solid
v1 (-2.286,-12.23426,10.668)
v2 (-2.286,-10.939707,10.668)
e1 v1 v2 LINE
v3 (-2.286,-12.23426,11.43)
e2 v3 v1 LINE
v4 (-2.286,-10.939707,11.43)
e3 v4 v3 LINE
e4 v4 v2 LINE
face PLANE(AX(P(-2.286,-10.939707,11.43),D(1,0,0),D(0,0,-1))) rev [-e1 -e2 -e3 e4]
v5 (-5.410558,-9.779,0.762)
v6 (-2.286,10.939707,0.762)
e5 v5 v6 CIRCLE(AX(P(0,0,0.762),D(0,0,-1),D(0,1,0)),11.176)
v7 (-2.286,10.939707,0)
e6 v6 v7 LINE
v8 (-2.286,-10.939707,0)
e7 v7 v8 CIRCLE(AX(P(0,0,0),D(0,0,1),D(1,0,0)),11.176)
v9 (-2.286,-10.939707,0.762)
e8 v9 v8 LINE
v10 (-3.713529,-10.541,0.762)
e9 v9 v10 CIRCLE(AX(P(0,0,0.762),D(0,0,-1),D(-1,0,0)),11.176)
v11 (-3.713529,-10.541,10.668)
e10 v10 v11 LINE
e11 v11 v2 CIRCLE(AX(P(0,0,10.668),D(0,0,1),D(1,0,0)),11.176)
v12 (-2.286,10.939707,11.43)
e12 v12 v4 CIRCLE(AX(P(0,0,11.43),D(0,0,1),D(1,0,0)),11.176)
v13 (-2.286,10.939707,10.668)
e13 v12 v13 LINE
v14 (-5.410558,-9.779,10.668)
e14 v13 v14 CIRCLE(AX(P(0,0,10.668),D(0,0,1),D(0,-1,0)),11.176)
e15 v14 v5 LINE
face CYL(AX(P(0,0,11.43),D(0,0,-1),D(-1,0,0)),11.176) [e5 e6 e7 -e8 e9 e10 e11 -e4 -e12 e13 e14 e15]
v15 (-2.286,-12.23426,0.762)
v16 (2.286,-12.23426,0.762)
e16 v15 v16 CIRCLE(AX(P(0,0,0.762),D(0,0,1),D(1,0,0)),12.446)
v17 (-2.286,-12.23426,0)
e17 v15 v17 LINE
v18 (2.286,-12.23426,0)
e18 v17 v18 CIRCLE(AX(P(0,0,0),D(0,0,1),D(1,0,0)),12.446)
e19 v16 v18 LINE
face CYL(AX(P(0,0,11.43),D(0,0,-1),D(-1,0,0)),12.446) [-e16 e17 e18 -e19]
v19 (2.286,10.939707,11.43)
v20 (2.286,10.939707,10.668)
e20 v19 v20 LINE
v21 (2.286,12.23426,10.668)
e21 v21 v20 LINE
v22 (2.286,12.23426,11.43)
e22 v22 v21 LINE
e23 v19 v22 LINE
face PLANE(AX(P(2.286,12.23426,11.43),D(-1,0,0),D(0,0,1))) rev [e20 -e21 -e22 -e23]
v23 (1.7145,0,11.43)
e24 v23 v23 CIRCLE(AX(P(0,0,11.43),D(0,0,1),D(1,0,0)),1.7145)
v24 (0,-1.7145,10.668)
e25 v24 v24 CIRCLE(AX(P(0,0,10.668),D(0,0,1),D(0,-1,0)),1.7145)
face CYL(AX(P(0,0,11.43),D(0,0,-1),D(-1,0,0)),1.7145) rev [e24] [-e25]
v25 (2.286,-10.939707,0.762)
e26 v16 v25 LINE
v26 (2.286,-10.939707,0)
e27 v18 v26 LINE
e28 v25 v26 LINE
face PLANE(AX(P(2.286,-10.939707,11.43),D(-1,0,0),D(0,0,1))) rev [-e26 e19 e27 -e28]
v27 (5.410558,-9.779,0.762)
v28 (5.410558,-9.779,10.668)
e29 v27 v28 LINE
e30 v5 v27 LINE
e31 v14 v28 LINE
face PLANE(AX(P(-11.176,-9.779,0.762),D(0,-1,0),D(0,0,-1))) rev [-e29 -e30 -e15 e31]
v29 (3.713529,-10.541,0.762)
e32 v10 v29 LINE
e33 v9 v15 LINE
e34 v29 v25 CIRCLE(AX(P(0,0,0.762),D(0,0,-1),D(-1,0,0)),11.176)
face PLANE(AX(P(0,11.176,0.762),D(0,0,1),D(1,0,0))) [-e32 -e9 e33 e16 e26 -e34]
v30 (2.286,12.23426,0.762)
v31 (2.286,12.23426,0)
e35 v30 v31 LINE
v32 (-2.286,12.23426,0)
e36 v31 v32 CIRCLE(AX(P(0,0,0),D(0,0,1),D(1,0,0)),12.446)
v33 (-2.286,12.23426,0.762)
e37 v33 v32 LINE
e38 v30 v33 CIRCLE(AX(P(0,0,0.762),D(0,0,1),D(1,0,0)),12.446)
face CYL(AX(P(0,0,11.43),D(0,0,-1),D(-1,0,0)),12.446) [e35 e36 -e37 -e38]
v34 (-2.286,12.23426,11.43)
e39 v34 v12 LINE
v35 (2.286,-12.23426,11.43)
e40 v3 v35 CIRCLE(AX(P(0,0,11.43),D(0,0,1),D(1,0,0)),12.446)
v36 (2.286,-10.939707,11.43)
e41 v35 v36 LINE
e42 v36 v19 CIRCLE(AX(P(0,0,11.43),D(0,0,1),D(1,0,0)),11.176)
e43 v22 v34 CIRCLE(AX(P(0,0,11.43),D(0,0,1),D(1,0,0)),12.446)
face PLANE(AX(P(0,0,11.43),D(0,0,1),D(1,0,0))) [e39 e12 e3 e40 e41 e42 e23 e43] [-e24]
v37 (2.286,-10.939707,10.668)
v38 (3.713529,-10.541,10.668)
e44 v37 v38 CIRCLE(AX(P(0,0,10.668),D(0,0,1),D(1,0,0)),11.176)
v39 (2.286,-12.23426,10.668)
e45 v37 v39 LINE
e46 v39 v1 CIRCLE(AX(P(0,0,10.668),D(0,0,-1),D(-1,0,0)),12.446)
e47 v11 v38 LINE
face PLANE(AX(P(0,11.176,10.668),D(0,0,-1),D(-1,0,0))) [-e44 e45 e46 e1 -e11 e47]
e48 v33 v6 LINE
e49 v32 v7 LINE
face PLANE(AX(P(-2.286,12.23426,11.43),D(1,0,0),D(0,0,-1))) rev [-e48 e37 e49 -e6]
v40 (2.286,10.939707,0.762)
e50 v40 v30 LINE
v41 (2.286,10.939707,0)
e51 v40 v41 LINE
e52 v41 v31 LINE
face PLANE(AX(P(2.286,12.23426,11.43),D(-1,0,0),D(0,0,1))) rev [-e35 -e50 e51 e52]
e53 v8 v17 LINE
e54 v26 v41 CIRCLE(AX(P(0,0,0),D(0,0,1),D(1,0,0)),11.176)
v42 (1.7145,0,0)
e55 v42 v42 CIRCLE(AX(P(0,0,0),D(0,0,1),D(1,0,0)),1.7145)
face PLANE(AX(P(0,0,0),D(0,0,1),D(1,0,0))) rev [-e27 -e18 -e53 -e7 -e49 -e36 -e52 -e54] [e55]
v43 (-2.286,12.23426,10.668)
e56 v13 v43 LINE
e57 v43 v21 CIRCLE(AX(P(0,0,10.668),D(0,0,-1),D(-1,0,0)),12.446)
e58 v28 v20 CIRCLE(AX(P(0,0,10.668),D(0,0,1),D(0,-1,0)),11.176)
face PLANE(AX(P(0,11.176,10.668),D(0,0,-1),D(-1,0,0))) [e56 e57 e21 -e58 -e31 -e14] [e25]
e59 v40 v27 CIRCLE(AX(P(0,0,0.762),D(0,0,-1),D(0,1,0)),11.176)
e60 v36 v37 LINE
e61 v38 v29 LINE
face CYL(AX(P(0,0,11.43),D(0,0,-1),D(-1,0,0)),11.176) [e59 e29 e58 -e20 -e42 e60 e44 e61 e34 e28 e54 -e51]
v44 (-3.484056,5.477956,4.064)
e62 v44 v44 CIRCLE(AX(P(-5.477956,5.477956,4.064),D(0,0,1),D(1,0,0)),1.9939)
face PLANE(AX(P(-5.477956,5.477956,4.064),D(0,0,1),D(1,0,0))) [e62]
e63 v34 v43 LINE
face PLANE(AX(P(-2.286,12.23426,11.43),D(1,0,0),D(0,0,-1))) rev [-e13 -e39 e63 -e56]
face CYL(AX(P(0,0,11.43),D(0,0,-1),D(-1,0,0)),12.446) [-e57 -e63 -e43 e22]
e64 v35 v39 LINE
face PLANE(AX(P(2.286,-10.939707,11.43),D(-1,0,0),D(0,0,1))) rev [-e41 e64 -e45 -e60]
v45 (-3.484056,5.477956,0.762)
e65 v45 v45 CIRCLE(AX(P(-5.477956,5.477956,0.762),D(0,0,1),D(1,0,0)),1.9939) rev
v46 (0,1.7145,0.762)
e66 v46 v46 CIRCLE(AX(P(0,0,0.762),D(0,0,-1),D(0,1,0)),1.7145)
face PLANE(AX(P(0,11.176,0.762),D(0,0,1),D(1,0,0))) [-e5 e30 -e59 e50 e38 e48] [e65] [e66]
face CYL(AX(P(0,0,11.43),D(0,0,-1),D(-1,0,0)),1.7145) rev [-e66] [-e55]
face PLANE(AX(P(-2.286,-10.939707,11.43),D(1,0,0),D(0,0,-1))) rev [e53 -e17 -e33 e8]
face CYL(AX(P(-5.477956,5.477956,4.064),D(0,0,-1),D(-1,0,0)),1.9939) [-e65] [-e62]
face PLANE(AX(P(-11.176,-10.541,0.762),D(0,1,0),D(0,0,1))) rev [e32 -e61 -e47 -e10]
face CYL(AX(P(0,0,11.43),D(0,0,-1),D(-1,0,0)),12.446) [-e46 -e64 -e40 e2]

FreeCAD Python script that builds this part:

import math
import FreeCAD as App
import Part
import Sketcher
Q = App.Units.Quantity


def add_polygon(sketch, points):
    """Adds a closed chain of lines whose ends are joined by coincident constraints."""
    first, n = sketch.GeometryCount, len(points)
    for a, b in zip(points, points[1:] + points[:1]):
        sketch.addGeometry(Part.LineSegment(App.Vector(*a, 0), App.Vector(*b, 0)), False)
    for i in range(n):
        sketch.addConstraint(Sketcher.Constraint("Coincident", first + i, 2, first + (i + 1) % n, 1))

doc = App.newDocument("Part")
body = doc.addObject("PartDesign::Body", "Body")

# Sketch on XY plane
sketch1 = body.newObject("Sketcher::SketchObject", "Sketch")
sketch1.AttachmentSupport = (doc.getObject("XY_Plane"), [""])
sketch1.MapMode = "FlatFace"
sketch1.addGeometry(Part.LineSegment(App.Vector(-2.3, 12.2, 0), App.Vector(-2.3, 10.9, 0)), False)
sketch1.addGeometry(Part.ArcOfCircle(Part.Circle(App.Vector(0, 0, 0), App.Vector(0, 0, 1), 11.2), math.radians(102), math.radians(258)), False)
sketch1.addGeometry(Part.LineSegment(App.Vector(-2.3, -10.9, 0), App.Vector(-2.3, -12.2, 0)), False)
sketch1.addGeometry(Part.ArcOfCircle(Part.Circle(App.Vector(0, 0, 0), App.Vector(0, 0, 1), 12.4), math.radians(-101), math.radians(-79)), False)
sketch1.addGeometry(Part.LineSegment(App.Vector(2.3, -12.2, 0), App.Vector(2.3, -10.9, 0)), False)
sketch1.addGeometry(Part.ArcOfCircle(Part.Circle(App.Vector(0, 0, 0), App.Vector(0, 0, 1), 11.2), math.radians(-78), math.radians(78)), False)
sketch1.addGeometry(Part.LineSegment(App.Vector(2.3, 10.9, 0), App.Vector(2.3, 12.2, 0)), False)
sketch1.addGeometry(Part.ArcOfCircle(Part.Circle(App.Vector(0, 0, 0), App.Vector(0, 0, 1), 12.4), math.radians(79), math.radians(101)), False)
sketch1.addGeometry(Part.Circle(App.Vector(0, 0, 0), App.Vector(0, 0, 1), 1.7), False)
sketch1.addConstraint(Sketcher.Constraint("Coincident", 0, 2, 1, 1))
sketch1.addConstraint(Sketcher.Constraint("Coincident", 1, 2, 2, 1))
sketch1.addConstraint(Sketcher.Constraint("Coincident", 2, 2, 3, 1))
sketch1.addConstraint(Sketcher.Constraint("Coincident", 3, 2, 4, 1))
sketch1.addConstraint(Sketcher.Constraint("Coincident", 4, 2, 5, 1))
sketch1.addConstraint(Sketcher.Constraint("Coincident", 5, 2, 6, 1))
sketch1.addConstraint(Sketcher.Constraint("Coincident", 6, 2, 7, 1))
sketch1.addConstraint(Sketcher.Constraint("Coincident", 7, 2, 0, 1))
sketch1.addConstraint(Sketcher.Constraint("Vertical", 0))
sketch1.addConstraint(Sketcher.Constraint("Vertical", 2))
sketch1.addConstraint(Sketcher.Constraint("Vertical", 4))
sketch1.addConstraint(Sketcher.Constraint("Vertical", 6))
sketch1.addConstraint(Sketcher.Constraint("Coincident", 1, 3, -1, 1))
sketch1.addConstraint(Sketcher.Constraint("Coincident", 3, 3, -1, 1))
sketch1.addConstraint(Sketcher.Constraint("Coincident", 5, 3, -1, 1))
sketch1.addConstraint(Sketcher.Constraint("Coincident", 7, 3, -1, 1))
sketch1.addConstraint(Sketcher.Constraint("Coincident", 8, 3, -1, 1))
sketch1.addConstraint(Sketcher.Constraint("Equal", 1, 5))
sketch1.addConstraint(Sketcher.Constraint("Equal", 3, 7))
sketch1.addConstraint(Sketcher.Constraint("Horizontal", 2, 2, 3, 2))
sketch1.addConstraint(Sketcher.Constraint("Horizontal", 0, 2, 5, 2))
sketch1.addConstraint(Sketcher.Constraint("Vertical", 0, 2, 1, 2))
sketch1.addConstraint(Sketcher.Constraint("Radius", 1, Q("0.44 in")))
sketch1.addConstraint(Sketcher.Constraint("Radius", 3, Q("0.49 in")))
sketch1.addConstraint(Sketcher.Constraint("Diameter", 8, Q("0.135 in")))
sketch1.addConstraint(Sketcher.Constraint("DistanceX", 0, 2, -1, 1, Q("0.09 in")))
pad1 = body.newObject("PartDesign::Pad", "Pad")
pad1.Profile = sketch1
pad1.Length = Q("0.45 in")

# Sketch on YZ plane
sketch2 = body.newObject("Sketcher::SketchObject", "Sketch001")
sketch2.AttachmentSupport = (doc.getObject("YZ_Plane"), [""])
sketch2.MapMode = "FlatFace"
add_polygon(sketch2, [(13.7, 10.7), (11.2, 10.7), (11.2, 0.8), (13.7, 0.8)])  # lines 0-3
sketch2.addConstraint(Sketcher.Constraint("Horizontal", 0))
sketch2.addConstraint(Sketcher.Constraint("Vertical", 1))
sketch2.addConstraint(Sketcher.Constraint("Horizontal", 2))
sketch2.addConstraint(Sketcher.Constraint("Vertical", 3))
sketch2.addConstraint(Sketcher.Constraint("DistanceX", 0, 2, 0, 1, Q("0.1 in")))
sketch2.addConstraint(Sketcher.Constraint("DistanceY", 1, 2, 1, 1, Q("0.39 in")))
sketch2.addConstraint(Sketcher.Constraint("DistanceX", -1, 1, 0, 2, Q("0.44 in")))
sketch2.addConstraint(Sketcher.Constraint("DistanceY", -1, 1, 0, 2, Q("0.42 in")))
groove = body.newObject("PartDesign::Groove", "Groove")
groove.Profile = sketch2
groove.ReferenceAxis = (sketch2, ["V_Axis"])
groove.Angle = 360

# Sketch on YZ plane
sketch3 = body.newObject("Sketcher::SketchObject", "Sketch002")
sketch3.AttachmentSupport = (doc.getObject("YZ_Plane"), [""])
sketch3.MapMode = "FlatFace"
add_polygon(sketch3, [(11.2, 10.7), (-9.8, 10.7), (-9.8, 0.8), (11.2, 0.8)])  # lines 0-3
add_polygon(sketch3, [(-10.5, 10.7), (-11.2, 10.7), (-11.2, 0.8), (-10.5, 0.8)])  # lines 4-7
sketch3.addConstraint(Sketcher.Constraint("Horizontal", 0))
sketch3.addConstraint(Sketcher.Constraint("Vertical", 1))
sketch3.addConstraint(Sketcher.Constraint("Horizontal", 2))
sketch3.addConstraint(Sketcher.Constraint("Vertical", 3))
sketch3.addConstraint(Sketcher.Constraint("Horizontal", 4))
sketch3.addConstraint(Sketcher.Constraint("Vertical", 5))
sketch3.addConstraint(Sketcher.Constraint("Horizontal", 6))
sketch3.addConstraint(Sketcher.Constraint("Vertical", 7))
sketch3.addConstraint(Sketcher.Constraint("Symmetric", 3, 2, 4, 2, -2))
sketch3.addConstraint(Sketcher.Constraint("Horizontal", 2, 2, 5, 2))
sketch3.addConstraint(Sketcher.Constraint("DistanceY", 1, 2, 1, 1, Q("0.39 in")))
sketch3.addConstraint(Sketcher.Constraint("DistanceX", 0, 2, 0, 1, Q("0.825 in")))
sketch3.addConstraint(Sketcher.Constraint("DistanceX", 4, 2, 4, 1, Q("0.025 in")))
sketch3.addConstraint(Sketcher.Constraint("DistanceY", -1, 1, 0, 2, Q("0.42 in")))
sketch3.addConstraint(Sketcher.Constraint("DistanceX", -1, 1, 2, 2, Q("0.44 in")))
pocket1 = body.newObject("PartDesign::Pocket", "Pocket")
pocket1.Profile = sketch3
pocket1.Type = "ThroughAll"
pocket1.Midplane = True

# Sketch on XY plane
sketch4 = body.newObject("Sketcher::SketchObject", "Sketch003")
sketch4.AttachmentSupport = (doc.getObject("XY_Plane"), [""])
sketch4.MapMode = "FlatFace"
sketch4.addGeometry(Part.Circle(App.Vector(-5.5, 5.5, 0), App.Vector(0, 0, 1), 2), False)
sketch4.addConstraint(Sketcher.Constraint("Diameter", 0, Q("0.157 in")))
sketch4.addConstraint(Sketcher.Constraint("DistanceX", 0, 3, -1, 1, 5.477956))
sketch4.addConstraint(Sketcher.Constraint("DistanceY", -1, 1, 0, 3, 5.477956))
pad2 = body.newObject("PartDesign::Pad", "Pad001")
pad2.Profile = sketch4
pad2.Length = Q("0.16 in")

doc.recompute()
